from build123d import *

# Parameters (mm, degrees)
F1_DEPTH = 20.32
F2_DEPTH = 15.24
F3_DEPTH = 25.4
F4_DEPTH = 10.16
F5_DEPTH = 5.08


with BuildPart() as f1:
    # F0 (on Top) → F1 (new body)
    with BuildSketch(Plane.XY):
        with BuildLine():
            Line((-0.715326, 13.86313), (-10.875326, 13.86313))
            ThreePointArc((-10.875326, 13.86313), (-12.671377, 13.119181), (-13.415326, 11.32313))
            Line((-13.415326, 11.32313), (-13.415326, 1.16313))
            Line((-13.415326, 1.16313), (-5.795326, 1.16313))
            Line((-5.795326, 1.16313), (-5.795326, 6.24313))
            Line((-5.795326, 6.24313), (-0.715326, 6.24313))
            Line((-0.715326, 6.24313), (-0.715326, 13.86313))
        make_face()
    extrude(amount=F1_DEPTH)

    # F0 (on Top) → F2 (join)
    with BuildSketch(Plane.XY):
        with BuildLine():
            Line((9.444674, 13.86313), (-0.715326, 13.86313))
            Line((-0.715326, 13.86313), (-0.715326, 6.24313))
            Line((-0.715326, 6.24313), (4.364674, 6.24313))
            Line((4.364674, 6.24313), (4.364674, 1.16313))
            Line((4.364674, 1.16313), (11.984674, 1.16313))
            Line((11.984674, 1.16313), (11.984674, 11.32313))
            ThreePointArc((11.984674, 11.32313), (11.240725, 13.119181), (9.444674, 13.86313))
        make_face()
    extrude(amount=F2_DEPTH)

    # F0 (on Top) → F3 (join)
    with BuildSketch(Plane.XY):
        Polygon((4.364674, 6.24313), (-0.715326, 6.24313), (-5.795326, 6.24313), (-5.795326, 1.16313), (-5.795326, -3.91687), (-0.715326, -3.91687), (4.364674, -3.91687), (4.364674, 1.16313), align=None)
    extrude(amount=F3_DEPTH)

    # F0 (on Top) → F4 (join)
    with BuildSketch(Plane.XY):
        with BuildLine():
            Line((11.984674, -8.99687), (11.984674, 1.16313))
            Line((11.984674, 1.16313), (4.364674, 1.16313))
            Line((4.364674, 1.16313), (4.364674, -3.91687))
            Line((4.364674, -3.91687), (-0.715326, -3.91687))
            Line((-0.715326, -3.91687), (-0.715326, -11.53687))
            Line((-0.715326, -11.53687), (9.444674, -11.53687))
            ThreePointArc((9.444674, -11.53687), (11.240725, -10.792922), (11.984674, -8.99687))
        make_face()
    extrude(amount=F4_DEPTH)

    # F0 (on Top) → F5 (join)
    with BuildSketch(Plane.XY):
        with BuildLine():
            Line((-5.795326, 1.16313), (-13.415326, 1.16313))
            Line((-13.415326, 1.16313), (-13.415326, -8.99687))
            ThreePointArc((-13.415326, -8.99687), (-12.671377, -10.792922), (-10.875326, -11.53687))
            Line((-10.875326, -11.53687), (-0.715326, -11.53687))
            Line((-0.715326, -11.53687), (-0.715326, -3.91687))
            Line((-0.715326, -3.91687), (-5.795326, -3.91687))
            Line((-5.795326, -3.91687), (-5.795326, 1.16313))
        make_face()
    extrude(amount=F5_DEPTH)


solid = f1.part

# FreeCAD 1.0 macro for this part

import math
import FreeCAD as App
import Part
import Sketcher
Q = App.Units.Quantity

doc = App.newDocument("Part")
params = doc.addObject("Spreadsheet::Sheet", "Params")
for row, (alias, value) in enumerate([
    ("sketch1_radius", "0.1 in"),
    ("sketch1_width", "0.4 in"),
    ("sketch1_width2", "0.3 in"),
    ("pad1_length", "0.8 in"),
    ("sketch2_radius", "0.1 in"),
    ("sketch2_width", "0.4 in"),
    ("sketch2_width2", "0.2 in"),
    ("pad2_length", "0.6 in"),
    ("sketch3_width", "0.4 in"),
    ("pad3_length", "1 in"),
    ("sketch4_radius", "0.1 in"),
    ("sketch4_width", "0.3 in"),
    ("sketch4_width2", "0.2 in"),
    ("pad4_length", "0.4 in"),
    ("sketch5_radius", "0.1 in"),
    ("sketch5_width", "0.3 in"),
    ("sketch5_width2", "0.4 in"),
    ("pad5_length", "0.2 in"),
], start=1):
    params.set(f"A{row}", alias)
    params.set(f"B{row}", "=" + value)
    params.setAlias(f"B{row}", alias)

body = doc.addObject("PartDesign::Body", "Body")

sketch1 = body.newObject("Sketcher::SketchObject", "Sketch")
sketch1.AttachmentSupport = (doc.getObject("XY_Plane"), [""])
sketch1.MapMode = "FlatFace"
sketch1.addGeometry(Part.LineSegment(App.Vector(-0.7, 13.9, 0), App.Vector(-10.9, 13.9, 0)), False)
sketch1.addGeometry(Part.ArcOfCircle(Part.Circle(App.Vector(-10.9, 11.3, 0), App.Vector(0, 0, 1), 2.5), math.radians(90), math.radians(180)), False)
sketch1.addGeometry(Part.LineSegment(App.Vector(-13.4, 11.3, 0), App.Vector(-13.4, 1.2, 0)), False)
sketch1.addGeometry(Part.LineSegment(App.Vector(-13.4, 1.2, 0), App.Vector(-5.8, 1.2, 0)), False)
sketch1.addGeometry(Part.LineSegment(App.Vector(-5.8, 1.2, 0), App.Vector(-5.8, 6.2, 0)), False)
sketch1.addGeometry(Part.LineSegment(App.Vector(-5.8, 6.2, 0), App.Vector(-0.7, 6.2, 0)), False)
sketch1.addGeometry(Part.LineSegment(App.Vector(-0.7, 6.2, 0), App.Vector(-0.7, 13.9, 0)), False)
sketch1.addConstraint(Sketcher.Constraint("Tangent", 0, 2, 1, 1))
sketch1.addConstraint(Sketcher.Constraint("Tangent", 1, 2, 2, 1))
sketch1.addConstraint(Sketcher.Constraint("Coincident", 2, 2, 3, 1))
sketch1.addConstraint(Sketcher.Constraint("Coincident", 3, 2, 4, 1))
sketch1.addConstraint(Sketcher.Constraint("Coincident", 4, 2, 5, 1))
sketch1.addConstraint(Sketcher.Constraint("Coincident", 5, 2, 6, 1))
sketch1.addConstraint(Sketcher.Constraint("Coincident", 6, 2, 0, 1))
sketch1.addConstraint(Sketcher.Constraint("Horizontal", 0))
sketch1.addConstraint(Sketcher.Constraint("Vertical", 2))
sketch1.addConstraint(Sketcher.Constraint("Horizontal", 3))
sketch1.addConstraint(Sketcher.Constraint("Vertical", 4))
sketch1.addConstraint(Sketcher.Constraint("Horizontal", 5))
sketch1.addConstraint(Sketcher.Constraint("Vertical", 6))
sketch1.addConstraint(Sketcher.Constraint("Equal", 0, 2))
sketch1.addConstraint(Sketcher.Constraint("Equal", 5, 4))
sketch1.addConstraint(Sketcher.Constraint("Radius", 1, Q("0.1 in")))
sketch1.addConstraint(Sketcher.Constraint("DistanceX", 0, 2, 0, 1, Q("0.4 in")))
sketch1.addConstraint(Sketcher.Constraint("DistanceX", 3, 1, 3, 2, Q("0.3 in")))
sketch1.addConstraint(Sketcher.Constraint("DistanceY", -1, 1, 1, 3, Q("11.323129 mm")))
sketch1.addConstraint(Sketcher.Constraint("DistanceX", 1, 3, -1, 1, Q("10.875325 mm")))
sketch1.setExpression("Constraints[15]", "Params.sketch1_radius")
sketch1.setExpression("Constraints[16]", "Params.sketch1_width")
sketch1.setExpression("Constraints[17]", "Params.sketch1_width2")
pad1 = body.newObject("PartDesign::Pad", "Pad")
pad1.Profile = sketch1
pad1.setExpression("Length", "Params.pad1_length")

sketch2 = body.newObject("Sketcher::SketchObject", "Sketch001")
sketch2.AttachmentSupport = (doc.getObject("XY_Plane"), [""])
sketch2.MapMode = "FlatFace"
sketch2.addGeometry(Part.LineSegment(App.Vector(9.4, 13.9, 0), App.Vector(-0.7, 13.9, 0)), False)
sketch2.addGeometry(Part.LineSegment(App.Vector(-0.7, 13.9, 0), App.Vector(-0.7, 6.2, 0)), False)
sketch2.addGeometry(Part.LineSegment(App.Vector(-0.7, 6.2, 0), App.Vector(4.4, 6.2, 0)), False)
sketch2.addGeometry(Part.LineSegment(App.Vector(4.4, 6.2, 0), App.Vector(4.4, 1.2, 0)), False)
sketch2.addGeometry(Part.LineSegment(App.Vector(4.4, 1.2, 0), App.Vector(12, 1.2, 0)), False)
sketch2.addGeometry(Part.LineSegment(App.Vector(12, 1.2, 0), App.Vector(12, 11.3, 0)), False)
sketch2.addGeometry(Part.ArcOfCircle(Part.Circle(App.Vector(9.4, 11.3, 0), App.Vector(0, 0, 1), 2.5), math.radians(0), math.radians(90)), False)
sketch2.addConstraint(Sketcher.Constraint("Coincident", 0, 2, 1, 1))
sketch2.addConstraint(Sketcher.Constraint("Coincident", 1, 2, 2, 1))
sketch2.addConstraint(Sketcher.Constraint("Coincident", 2, 2, 3, 1))
sketch2.addConstraint(Sketcher.Constraint("Coincident", 3, 2, 4, 1))
sketch2.addConstraint(Sketcher.Constraint("Coincident", 4, 2, 5, 1))
sketch2.addConstraint(Sketcher.Constraint("Tangent", 5, 2, 6, 1))
sketch2.addConstraint(Sketcher.Constraint("Tangent", 6, 2, 0, 1))
sketch2.addConstraint(Sketcher.Constraint("Horizontal", 0))
sketch2.addConstraint(Sketcher.Constraint("Vertical", 1))
sketch2.addConstraint(Sketcher.Constraint("Horizontal", 2))
sketch2.addConstraint(Sketcher.Constraint("Vertical", 3))
sketch2.addConstraint(Sketcher.Constraint("Horizontal", 4))
sketch2.addConstraint(Sketcher.Constraint("Vertical", 5))
sketch2.addConstraint(Sketcher.Constraint("Equal", 4, 1))
sketch2.addConstraint(Sketcher.Constraint("Equal", 2, 3))
sketch2.addConstraint(Sketcher.Constraint("Radius", 6, Q("0.1 in")))
sketch2.addConstraint(Sketcher.Constraint("DistanceX", 0, 2, 0, 1, Q("0.4 in")))
sketch2.addConstraint(Sketcher.Constraint("DistanceX", 2, 1, 2, 2, Q("0.2 in")))
sketch2.addConstraint(Sketcher.Constraint("DistanceY", -1, 1, 6, 3, Q("11.323129 mm")))
sketch2.addConstraint(Sketcher.Constraint("DistanceX", -1, 1, 6, 3, Q("9.444673 mm")))
sketch2.setExpression("Constraints[15]", "Params.sketch2_radius")
sketch2.setExpression("Constraints[16]", "Params.sketch2_width")
sketch2.setExpression("Constraints[17]", "Params.sketch2_width2")
pad2 = body.newObject("PartDesign::Pad", "Pad001")
pad2.Profile = sketch2
pad2.setExpression("Length", "Params.pad2_length")

sketch3 = body.newObject("Sketcher::SketchObject", "Sketch002")
sketch3.AttachmentSupport = (doc.getObject("XY_Plane"), [""])
sketch3.MapMode = "FlatFace"
sketch3.addGeometry(Part.LineSegment(App.Vector(4, 6, 0), App.Vector(-6, 6, 0)), False)
sketch3.addGeometry(Part.LineSegment(App.Vector(-6, 6, 0), App.Vector(-6, -4, 0)), False)
sketch3.addGeometry(Part.LineSegment(App.Vector(-6, -4, 0), App.Vector(4, -4, 0)), False)
sketch3.addGeometry(Part.LineSegment(App.Vector(4, -4, 0), App.Vector(4, 6, 0)), False)
sketch3.addConstraint(Sketcher.Constraint("Coincident", 0, 2, 1, 1))
sketch3.addConstraint(Sketcher.Constraint("Coincident", 1, 2, 2, 1))
sketch3.addConstraint(Sketcher.Constraint("Coincident", 2, 2, 3, 1))
sketch3.addConstraint(Sketcher.Constraint("Coincident", 3, 2, 0, 1))
sketch3.addConstraint(Sketcher.Constraint("Horizontal", 0))
sketch3.addConstraint(Sketcher.Constraint("Vertical", 1))
sketch3.addConstraint(Sketcher.Constraint("Horizontal", 2))
sketch3.addConstraint(Sketcher.Constraint("Vertical", 3))
sketch3.addConstraint(Sketcher.Constraint("Equal", 2, 1))
sketch3.addConstraint(Sketcher.Constraint("DistanceX", 0, 2, 0, 1, Q("0.4 in")))
sketch3.addConstraint(Sketcher.Constraint("DistanceY", -1, 1, 0, 2, Q("6.24313 mm")))
sketch3.addConstraint(Sketcher.Constraint("DistanceX", 0, 2, -1, 1, Q("5.795326 mm")))
sketch3.setExpression("Constraints[9]", "Params.sketch3_width")
pad3 = body.newObject("PartDesign::Pad", "Pad002")
pad3.Profile = sketch3
pad3.setExpression("Length", "Params.pad3_length")

sketch4 = body.newObject("Sketcher::SketchObject", "Sketch003")
sketch4.AttachmentSupport = (doc.getObject("XY_Plane"), [""])
sketch4.MapMode = "FlatFace"
sketch4.addGeometry(Part.LineSegment(App.Vector(12, -9, 0), App.Vector(12, 1.2, 0)), False)
sketch4.addGeometry(Part.LineSegment(App.Vector(12, 1.2, 0), App.Vector(4.4, 1.2, 0)), False)
sketch4.addGeometry(Part.LineSegment(App.Vector(4.4, 1.2, 0), App.Vector(4.4, -3.9, 0)), False)
sketch4.addGeometry(Part.LineSegment(App.Vector(4.4, -3.9, 0), App.Vector(-0.7, -3.9, 0)), False)
sketch4.addGeometry(Part.LineSegment(App.Vector(-0.7, -3.9, 0), App.Vector(-0.7, -11.5, 0)), False)
sketch4.addGeometry(Part.LineSegment(App.Vector(-0.7, -11.5, 0), App.Vector(9.4, -11.5, 0)), False)
sketch4.addGeometry(Part.ArcOfCircle(Part.Circle(App.Vector(9.4, -9, 0), App.Vector(0, 0, 1), 2.5), math.radians(-90), math.radians(0)), False)
sketch4.addConstraint(Sketcher.Constraint("Coincident", 0, 2, 1, 1))
sketch4.addConstraint(Sketcher.Constraint("Coincident", 1, 2, 2, 1))
sketch4.addConstraint(Sketcher.Constraint("Coincident", 2, 2, 3, 1))
sketch4.addConstraint(Sketcher.Constraint("Coincident", 3, 2, 4, 1))
sketch4.addConstraint(Sketcher.Constraint("Coincident", 4, 2, 5, 1))
sketch4.addConstraint(Sketcher.Constraint("Tangent", 5, 2, 6, 1))
sketch4.addConstraint(Sketcher.Constraint("Tangent", 6, 2, 0, 1))
sketch4.addConstraint(Sketcher.Constraint("Vertical", 0))
sketch4.addConstraint(Sketcher.Constraint("Horizontal", 1))
sketch4.addConstraint(Sketcher.Constraint("Vertical", 2))
sketch4.addConstraint(Sketcher.Constraint("Horizontal", 3))
sketch4.addConstraint(Sketcher.Constraint("Vertical", 4))
sketch4.addConstraint(Sketcher.Constraint("Horizontal", 5))
sketch4.addConstraint(Sketcher.Constraint("Equal", 5, 0))
sketch4.addConstraint(Sketcher.Constraint("Equal", 3, 2))
sketch4.addConstraint(Sketcher.Constraint("Radius", 6, Q("0.1 in")))
sketch4.addConstraint(Sketcher.Constraint("DistanceX", 1, 2, 1, 1, Q("0.3 in")))
sketch4.addConstraint(Sketcher.Constraint("DistanceX", 3, 2, 3, 1, Q("0.2 in")))
sketch4.addConstraint(Sketcher.Constraint("DistanceY", 6, 3, -1, 1, Q("8.996871 mm")))
sketch4.addConstraint(Sketcher.Constraint("DistanceX", -1, 1, 6, 3, Q("9.444675 mm")))
sketch4.setExpression("Constraints[15]", "Params.sketch4_radius")
sketch4.setExpression("Constraints[16]", "Params.sketch4_width")
sketch4.setExpression("Constraints[17]", "Params.sketch4_width2")
pad4 = body.newObject("PartDesign::Pad", "Pad003")
pad4.Profile = sketch4
pad4.setExpression("Length", "Params.pad4_length")

sketch5 = body.newObject("Sketcher::SketchObject", "Sketch004")
sketch5.AttachmentSupport = (doc.getObject("XY_Plane"), [""])
sketch5.MapMode = "FlatFace"
sketch5.addGeometry(Part.LineSegment(App.Vector(-5.8, 1.2, 0), App.Vector(-13.4, 1.2, 0)), False)
sketch5.addGeometry(Part.LineSegment(App.Vector(-13.4, 1.2, 0), App.Vector(-13.4, -9, 0)), False)
sketch5.addGeometry(Part.ArcOfCircle(Part.Circle(App.Vector(-10.9, -9, 0), App.Vector(0, 0, 1), 2.5), math.radians(180), math.radians(270)), False)
sketch5.addGeometry(Part.LineSegment(App.Vector(-10.9, -11.5, 0), App.Vector(-0.7, -11.5, 0)), False)
sketch5.addGeometry(Part.LineSegment(App.Vector(-0.7, -11.5, 0), App.Vector(-0.7, -3.9, 0)), False)
sketch5.addGeometry(Part.LineSegment(App.Vector(-0.7, -3.9, 0), App.Vector(-5.8, -3.9, 0)), False)
sketch5.addGeometry(Part.LineSegment(App.Vector(-5.8, -3.9, 0), App.Vector(-5.8, 1.2, 0)), False)
sketch5.addConstraint(Sketcher.Constraint("Coincident", 0, 2, 1, 1))
sketch5.addConstraint(Sketcher.Constraint("Tangent", 1, 2, 2, 1))
sketch5.addConstraint(Sketcher.Constraint("Tangent", 2, 2, 3, 1))
sketch5.addConstraint(Sketcher.Constraint("Coincident", 3, 2, 4, 1))
sketch5.addConstraint(Sketcher.Constraint("Coincident", 4, 2, 5, 1))
sketch5.addConstraint(Sketcher.Constraint("Coincident", 5, 2, 6, 1))
sketch5.addConstraint(Sketcher.Constraint("Coincident", 6, 2, 0, 1))
sketch5.addConstraint(Sketcher.Constraint("Horizontal", 0))
sketch5.addConstraint(Sketcher.Constraint("Vertical", 1))
sketch5.addConstraint(Sketcher.Constraint("Horizontal", 3))
sketch5.addConstraint(Sketcher.Constraint("Vertical", 4))
sketch5.addConstraint(Sketcher.Constraint("Horizontal", 5))
sketch5.addConstraint(Sketcher.Constraint("Vertical", 6))
sketch5.addConstraint(Sketcher.Constraint("Equal", 3, 1))
sketch5.addConstraint(Sketcher.Constraint("Equal", 0, 4))
sketch5.addConstraint(Sketcher.Constraint("Radius", 2, Q("0.1 in")))
sketch5.addConstraint(Sketcher.Constraint("DistanceX", 0, 2, 0, 1, Q("0.3 in")))
sketch5.addConstraint(Sketcher.Constraint("DistanceX", 3, 1, 3, 2, Q("0.4 in")))
sketch5.addConstraint(Sketcher.Constraint("DistanceY", 2, 3, -1, 1, Q("8.996871 mm")))
sketch5.addConstraint(Sketcher.Constraint("DistanceX", 2, 3, -1, 1, Q("10.875327 mm")))
sketch5.setExpression("Constraints[15]", "Params.sketch5_radius")
sketch5.setExpression("Constraints[16]", "Params.sketch5_width")
sketch5.setExpression("Constraints[17]", "Params.sketch5_width2")
pad5 = body.newObject("PartDesign::Pad", "Pad004")
pad5.Profile = sketch5
pad5.setExpression("Length", "Params.pad5_length")

doc.recompute()
